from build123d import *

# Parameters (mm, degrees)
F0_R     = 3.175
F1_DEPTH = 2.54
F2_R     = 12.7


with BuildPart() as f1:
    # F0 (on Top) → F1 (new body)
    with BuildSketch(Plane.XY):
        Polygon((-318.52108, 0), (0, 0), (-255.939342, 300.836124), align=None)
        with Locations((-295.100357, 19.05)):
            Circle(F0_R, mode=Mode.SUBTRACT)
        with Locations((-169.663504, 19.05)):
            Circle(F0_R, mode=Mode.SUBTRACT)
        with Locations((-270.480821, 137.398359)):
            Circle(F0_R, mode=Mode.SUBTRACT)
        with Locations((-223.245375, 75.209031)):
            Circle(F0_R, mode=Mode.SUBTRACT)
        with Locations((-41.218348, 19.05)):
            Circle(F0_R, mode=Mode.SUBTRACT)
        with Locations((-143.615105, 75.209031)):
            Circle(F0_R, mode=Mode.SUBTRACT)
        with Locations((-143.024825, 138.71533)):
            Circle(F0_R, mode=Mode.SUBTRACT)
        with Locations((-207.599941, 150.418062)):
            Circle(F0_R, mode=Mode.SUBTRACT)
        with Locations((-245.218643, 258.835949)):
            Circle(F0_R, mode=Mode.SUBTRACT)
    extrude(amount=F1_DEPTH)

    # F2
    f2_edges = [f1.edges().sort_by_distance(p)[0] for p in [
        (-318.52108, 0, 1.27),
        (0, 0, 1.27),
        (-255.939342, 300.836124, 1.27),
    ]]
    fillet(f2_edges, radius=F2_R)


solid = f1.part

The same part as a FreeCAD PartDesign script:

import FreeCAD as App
import Part
import Sketcher
Q = App.Units.Quantity


def edges_at(feature, points):
    """Names of the edges that pass closest to the given points."""
    edges = feature.Shape.Edges
    near = lambda p: min(range(len(edges)), key=lambda i: edges[i].distToShape(Part.Vertex(*p))[0])
    return sorted({f"Edge{near(p) + 1}" for p in points})

doc = App.newDocument("Part")
params = doc.addObject("Spreadsheet::Sheet", "Params")
for row, (alias, value) in enumerate([
    ("sketch1_diameter", "0.25 in"),
    ("pad1_length", "0.1 in"),
    ("fillet_radius", "0.5 in"),
], start=1):
    params.set(f"A{row}", alias)
    params.set(f"B{row}", "=" + value)
    params.setAlias(f"B{row}", alias)

body = doc.addObject("PartDesign::Body", "Body")

# Sketch on XY plane
sketch1 = doc.addObject("Sketcher::SketchObject", "Sketch")
body.addObject(sketch1)
sketch1.AttachmentSupport = (doc.XY_Plane, [""])
sketch1.MapMode = "FlatFace"
sketch1.addGeometry([
    Part.LineSegment(App.Vector(-318.52108, 0, 0), App.Vector(0, 0, 0)),  # 0
    Part.LineSegment(App.Vector(0, 0, 0), App.Vector(-255.939342, 300.836124, 0)),  # 1
    Part.LineSegment(App.Vector(-255.939342, 300.836124, 0), App.Vector(-318.52108, 0, 0)),  # 2
    Part.Circle(App.Vector(-295.100357, 19.05, 0), App.Vector(0, 0, 1), 3.175),  # 3
    Part.Circle(App.Vector(-169.663504, 19.05, 0), App.Vector(0, 0, 1), 3.175),  # 4
    Part.Circle(App.Vector(-223.245375, 75.209031, 0), App.Vector(0, 0, 1), 3.175),  # 5
    Part.Circle(App.Vector(-270.480821, 137.398359, 0), App.Vector(0, 0, 1), 3.175),  # 6
    Part.Circle(App.Vector(-143.615105, 75.209031, 0), App.Vector(0, 0, 1), 3.175),  # 7
    Part.Circle(App.Vector(-41.218348, 19.05, 0), App.Vector(0, 0, 1), 3.175),  # 8
    Part.Circle(App.Vector(-143.024825, 138.71533, 0), App.Vector(0, 0, 1), 3.175),  # 9
    Part.Circle(App.Vector(-207.599941, 150.418062, 0), App.Vector(0, 0, 1), 3.175),  # 10
    Part.Circle(App.Vector(-245.218643, 258.835949, 0), App.Vector(0, 0, 1), 3.175),  # 11
], False)
sketch1.addConstraint([
    Sketcher.Constraint("Coincident", 0, 2, 1, 1),
    Sketcher.Constraint("Coincident", 1, 2, 2, 1),
    Sketcher.Constraint("Coincident", 2, 2, 0, 1),
    Sketcher.Constraint("Horizontal", 0),
    Sketcher.Constraint("Coincident", 0, 2, -1, 1),
    Sketcher.Constraint("Equal", 3, 4),
    Sketcher.Constraint("Equal", 4, 5),
    Sketcher.Constraint("Equal", 5, 6),
    Sketcher.Constraint("Equal", 6, 7),
    Sketcher.Constraint("Equal", 7, 8),
    Sketcher.Constraint("Equal", 8, 9),
    Sketcher.Constraint("Equal", 9, 10),
    Sketcher.Constraint("Equal", 10, 11),
    Sketcher.Constraint("Horizontal", 3, 3, 4, 3),
    Sketcher.Constraint("Horizontal", 5, 3, 7, 3),
    Sketcher.Constraint("Horizontal", 4, 3, 8, 3),
    Sketcher.Constraint("Diameter", 3, Q("0.25 in")),
    Sketcher.Constraint("DistanceY", -1, 1, 3, 3, Q("0.75 in")),
    Sketcher.Constraint("DistanceX", 0, 1, 0, 2, Q("12.5402 in")),
    Sketcher.Constraint("Distance", 1, Q("15.5503 in")),
    Sketcher.Constraint("Distance", 2, Q("12.0975 in")),
    Sketcher.Constraint("DistanceX", 4, 3, 7, 3, 26.048399),
    Sketcher.Constraint("DistanceY", 7, 3, 9, 3, 63.506299),
    Sketcher.Constraint("DistanceX", 11, 3, 10, 3, 37.618702),
    Sketcher.Constraint("DistanceX", 1, 2, 11, 3, 10.720699),
    Sketcher.Constraint("DistanceY", -1, 1, 5, 3, 75.209031),
    Sketcher.Constraint("DistanceX", 6, 3, -1, 1, 270.480821),
    Sketcher.Constraint("DistanceY", -1, 1, 6, 3, 137.398359),
    Sketcher.Constraint("DistanceY", -1, 1, 10, 3, 150.418062),
    Sketcher.Constraint("DistanceY", -1, 1, 11, 3, 258.835949),
    Sketcher.Constraint("DistanceX", 5, 3, 4, 3, 53.581871),
    Sketcher.Constraint("DistanceX", 3, 3, 5, 3, 71.854982),
    Sketcher.Constraint("DistanceX", 3, 3, 8, 3, 253.882009),
    Sketcher.Constraint("DistanceX", 7, 3, 9, 3, 0.59028),
    Sketcher.Constraint("DistanceX", 3, 3, -1, 1, 295.100357),
])
sketch1.setExpression("Constraints[16]", "Params.sketch1_diameter")
pad1 = doc.addObject("PartDesign::Pad", "Pad")
body.addObject(pad1)
pad1.Profile = sketch1
pad1.setExpression("Length", "Params.pad1_length")
doc.recompute()

fillet = doc.addObject("PartDesign::Fillet", "Fillet")
body.addObject(fillet)
fillet.Base = (pad1, edges_at(pad1, [(-318.521, 0, 1.27), (0, 0, 1.27), (-255.939, 300.836, 1.27)]))
fillet.setExpression("Radius", "Params.fillet_radius")

doc.recompute()
